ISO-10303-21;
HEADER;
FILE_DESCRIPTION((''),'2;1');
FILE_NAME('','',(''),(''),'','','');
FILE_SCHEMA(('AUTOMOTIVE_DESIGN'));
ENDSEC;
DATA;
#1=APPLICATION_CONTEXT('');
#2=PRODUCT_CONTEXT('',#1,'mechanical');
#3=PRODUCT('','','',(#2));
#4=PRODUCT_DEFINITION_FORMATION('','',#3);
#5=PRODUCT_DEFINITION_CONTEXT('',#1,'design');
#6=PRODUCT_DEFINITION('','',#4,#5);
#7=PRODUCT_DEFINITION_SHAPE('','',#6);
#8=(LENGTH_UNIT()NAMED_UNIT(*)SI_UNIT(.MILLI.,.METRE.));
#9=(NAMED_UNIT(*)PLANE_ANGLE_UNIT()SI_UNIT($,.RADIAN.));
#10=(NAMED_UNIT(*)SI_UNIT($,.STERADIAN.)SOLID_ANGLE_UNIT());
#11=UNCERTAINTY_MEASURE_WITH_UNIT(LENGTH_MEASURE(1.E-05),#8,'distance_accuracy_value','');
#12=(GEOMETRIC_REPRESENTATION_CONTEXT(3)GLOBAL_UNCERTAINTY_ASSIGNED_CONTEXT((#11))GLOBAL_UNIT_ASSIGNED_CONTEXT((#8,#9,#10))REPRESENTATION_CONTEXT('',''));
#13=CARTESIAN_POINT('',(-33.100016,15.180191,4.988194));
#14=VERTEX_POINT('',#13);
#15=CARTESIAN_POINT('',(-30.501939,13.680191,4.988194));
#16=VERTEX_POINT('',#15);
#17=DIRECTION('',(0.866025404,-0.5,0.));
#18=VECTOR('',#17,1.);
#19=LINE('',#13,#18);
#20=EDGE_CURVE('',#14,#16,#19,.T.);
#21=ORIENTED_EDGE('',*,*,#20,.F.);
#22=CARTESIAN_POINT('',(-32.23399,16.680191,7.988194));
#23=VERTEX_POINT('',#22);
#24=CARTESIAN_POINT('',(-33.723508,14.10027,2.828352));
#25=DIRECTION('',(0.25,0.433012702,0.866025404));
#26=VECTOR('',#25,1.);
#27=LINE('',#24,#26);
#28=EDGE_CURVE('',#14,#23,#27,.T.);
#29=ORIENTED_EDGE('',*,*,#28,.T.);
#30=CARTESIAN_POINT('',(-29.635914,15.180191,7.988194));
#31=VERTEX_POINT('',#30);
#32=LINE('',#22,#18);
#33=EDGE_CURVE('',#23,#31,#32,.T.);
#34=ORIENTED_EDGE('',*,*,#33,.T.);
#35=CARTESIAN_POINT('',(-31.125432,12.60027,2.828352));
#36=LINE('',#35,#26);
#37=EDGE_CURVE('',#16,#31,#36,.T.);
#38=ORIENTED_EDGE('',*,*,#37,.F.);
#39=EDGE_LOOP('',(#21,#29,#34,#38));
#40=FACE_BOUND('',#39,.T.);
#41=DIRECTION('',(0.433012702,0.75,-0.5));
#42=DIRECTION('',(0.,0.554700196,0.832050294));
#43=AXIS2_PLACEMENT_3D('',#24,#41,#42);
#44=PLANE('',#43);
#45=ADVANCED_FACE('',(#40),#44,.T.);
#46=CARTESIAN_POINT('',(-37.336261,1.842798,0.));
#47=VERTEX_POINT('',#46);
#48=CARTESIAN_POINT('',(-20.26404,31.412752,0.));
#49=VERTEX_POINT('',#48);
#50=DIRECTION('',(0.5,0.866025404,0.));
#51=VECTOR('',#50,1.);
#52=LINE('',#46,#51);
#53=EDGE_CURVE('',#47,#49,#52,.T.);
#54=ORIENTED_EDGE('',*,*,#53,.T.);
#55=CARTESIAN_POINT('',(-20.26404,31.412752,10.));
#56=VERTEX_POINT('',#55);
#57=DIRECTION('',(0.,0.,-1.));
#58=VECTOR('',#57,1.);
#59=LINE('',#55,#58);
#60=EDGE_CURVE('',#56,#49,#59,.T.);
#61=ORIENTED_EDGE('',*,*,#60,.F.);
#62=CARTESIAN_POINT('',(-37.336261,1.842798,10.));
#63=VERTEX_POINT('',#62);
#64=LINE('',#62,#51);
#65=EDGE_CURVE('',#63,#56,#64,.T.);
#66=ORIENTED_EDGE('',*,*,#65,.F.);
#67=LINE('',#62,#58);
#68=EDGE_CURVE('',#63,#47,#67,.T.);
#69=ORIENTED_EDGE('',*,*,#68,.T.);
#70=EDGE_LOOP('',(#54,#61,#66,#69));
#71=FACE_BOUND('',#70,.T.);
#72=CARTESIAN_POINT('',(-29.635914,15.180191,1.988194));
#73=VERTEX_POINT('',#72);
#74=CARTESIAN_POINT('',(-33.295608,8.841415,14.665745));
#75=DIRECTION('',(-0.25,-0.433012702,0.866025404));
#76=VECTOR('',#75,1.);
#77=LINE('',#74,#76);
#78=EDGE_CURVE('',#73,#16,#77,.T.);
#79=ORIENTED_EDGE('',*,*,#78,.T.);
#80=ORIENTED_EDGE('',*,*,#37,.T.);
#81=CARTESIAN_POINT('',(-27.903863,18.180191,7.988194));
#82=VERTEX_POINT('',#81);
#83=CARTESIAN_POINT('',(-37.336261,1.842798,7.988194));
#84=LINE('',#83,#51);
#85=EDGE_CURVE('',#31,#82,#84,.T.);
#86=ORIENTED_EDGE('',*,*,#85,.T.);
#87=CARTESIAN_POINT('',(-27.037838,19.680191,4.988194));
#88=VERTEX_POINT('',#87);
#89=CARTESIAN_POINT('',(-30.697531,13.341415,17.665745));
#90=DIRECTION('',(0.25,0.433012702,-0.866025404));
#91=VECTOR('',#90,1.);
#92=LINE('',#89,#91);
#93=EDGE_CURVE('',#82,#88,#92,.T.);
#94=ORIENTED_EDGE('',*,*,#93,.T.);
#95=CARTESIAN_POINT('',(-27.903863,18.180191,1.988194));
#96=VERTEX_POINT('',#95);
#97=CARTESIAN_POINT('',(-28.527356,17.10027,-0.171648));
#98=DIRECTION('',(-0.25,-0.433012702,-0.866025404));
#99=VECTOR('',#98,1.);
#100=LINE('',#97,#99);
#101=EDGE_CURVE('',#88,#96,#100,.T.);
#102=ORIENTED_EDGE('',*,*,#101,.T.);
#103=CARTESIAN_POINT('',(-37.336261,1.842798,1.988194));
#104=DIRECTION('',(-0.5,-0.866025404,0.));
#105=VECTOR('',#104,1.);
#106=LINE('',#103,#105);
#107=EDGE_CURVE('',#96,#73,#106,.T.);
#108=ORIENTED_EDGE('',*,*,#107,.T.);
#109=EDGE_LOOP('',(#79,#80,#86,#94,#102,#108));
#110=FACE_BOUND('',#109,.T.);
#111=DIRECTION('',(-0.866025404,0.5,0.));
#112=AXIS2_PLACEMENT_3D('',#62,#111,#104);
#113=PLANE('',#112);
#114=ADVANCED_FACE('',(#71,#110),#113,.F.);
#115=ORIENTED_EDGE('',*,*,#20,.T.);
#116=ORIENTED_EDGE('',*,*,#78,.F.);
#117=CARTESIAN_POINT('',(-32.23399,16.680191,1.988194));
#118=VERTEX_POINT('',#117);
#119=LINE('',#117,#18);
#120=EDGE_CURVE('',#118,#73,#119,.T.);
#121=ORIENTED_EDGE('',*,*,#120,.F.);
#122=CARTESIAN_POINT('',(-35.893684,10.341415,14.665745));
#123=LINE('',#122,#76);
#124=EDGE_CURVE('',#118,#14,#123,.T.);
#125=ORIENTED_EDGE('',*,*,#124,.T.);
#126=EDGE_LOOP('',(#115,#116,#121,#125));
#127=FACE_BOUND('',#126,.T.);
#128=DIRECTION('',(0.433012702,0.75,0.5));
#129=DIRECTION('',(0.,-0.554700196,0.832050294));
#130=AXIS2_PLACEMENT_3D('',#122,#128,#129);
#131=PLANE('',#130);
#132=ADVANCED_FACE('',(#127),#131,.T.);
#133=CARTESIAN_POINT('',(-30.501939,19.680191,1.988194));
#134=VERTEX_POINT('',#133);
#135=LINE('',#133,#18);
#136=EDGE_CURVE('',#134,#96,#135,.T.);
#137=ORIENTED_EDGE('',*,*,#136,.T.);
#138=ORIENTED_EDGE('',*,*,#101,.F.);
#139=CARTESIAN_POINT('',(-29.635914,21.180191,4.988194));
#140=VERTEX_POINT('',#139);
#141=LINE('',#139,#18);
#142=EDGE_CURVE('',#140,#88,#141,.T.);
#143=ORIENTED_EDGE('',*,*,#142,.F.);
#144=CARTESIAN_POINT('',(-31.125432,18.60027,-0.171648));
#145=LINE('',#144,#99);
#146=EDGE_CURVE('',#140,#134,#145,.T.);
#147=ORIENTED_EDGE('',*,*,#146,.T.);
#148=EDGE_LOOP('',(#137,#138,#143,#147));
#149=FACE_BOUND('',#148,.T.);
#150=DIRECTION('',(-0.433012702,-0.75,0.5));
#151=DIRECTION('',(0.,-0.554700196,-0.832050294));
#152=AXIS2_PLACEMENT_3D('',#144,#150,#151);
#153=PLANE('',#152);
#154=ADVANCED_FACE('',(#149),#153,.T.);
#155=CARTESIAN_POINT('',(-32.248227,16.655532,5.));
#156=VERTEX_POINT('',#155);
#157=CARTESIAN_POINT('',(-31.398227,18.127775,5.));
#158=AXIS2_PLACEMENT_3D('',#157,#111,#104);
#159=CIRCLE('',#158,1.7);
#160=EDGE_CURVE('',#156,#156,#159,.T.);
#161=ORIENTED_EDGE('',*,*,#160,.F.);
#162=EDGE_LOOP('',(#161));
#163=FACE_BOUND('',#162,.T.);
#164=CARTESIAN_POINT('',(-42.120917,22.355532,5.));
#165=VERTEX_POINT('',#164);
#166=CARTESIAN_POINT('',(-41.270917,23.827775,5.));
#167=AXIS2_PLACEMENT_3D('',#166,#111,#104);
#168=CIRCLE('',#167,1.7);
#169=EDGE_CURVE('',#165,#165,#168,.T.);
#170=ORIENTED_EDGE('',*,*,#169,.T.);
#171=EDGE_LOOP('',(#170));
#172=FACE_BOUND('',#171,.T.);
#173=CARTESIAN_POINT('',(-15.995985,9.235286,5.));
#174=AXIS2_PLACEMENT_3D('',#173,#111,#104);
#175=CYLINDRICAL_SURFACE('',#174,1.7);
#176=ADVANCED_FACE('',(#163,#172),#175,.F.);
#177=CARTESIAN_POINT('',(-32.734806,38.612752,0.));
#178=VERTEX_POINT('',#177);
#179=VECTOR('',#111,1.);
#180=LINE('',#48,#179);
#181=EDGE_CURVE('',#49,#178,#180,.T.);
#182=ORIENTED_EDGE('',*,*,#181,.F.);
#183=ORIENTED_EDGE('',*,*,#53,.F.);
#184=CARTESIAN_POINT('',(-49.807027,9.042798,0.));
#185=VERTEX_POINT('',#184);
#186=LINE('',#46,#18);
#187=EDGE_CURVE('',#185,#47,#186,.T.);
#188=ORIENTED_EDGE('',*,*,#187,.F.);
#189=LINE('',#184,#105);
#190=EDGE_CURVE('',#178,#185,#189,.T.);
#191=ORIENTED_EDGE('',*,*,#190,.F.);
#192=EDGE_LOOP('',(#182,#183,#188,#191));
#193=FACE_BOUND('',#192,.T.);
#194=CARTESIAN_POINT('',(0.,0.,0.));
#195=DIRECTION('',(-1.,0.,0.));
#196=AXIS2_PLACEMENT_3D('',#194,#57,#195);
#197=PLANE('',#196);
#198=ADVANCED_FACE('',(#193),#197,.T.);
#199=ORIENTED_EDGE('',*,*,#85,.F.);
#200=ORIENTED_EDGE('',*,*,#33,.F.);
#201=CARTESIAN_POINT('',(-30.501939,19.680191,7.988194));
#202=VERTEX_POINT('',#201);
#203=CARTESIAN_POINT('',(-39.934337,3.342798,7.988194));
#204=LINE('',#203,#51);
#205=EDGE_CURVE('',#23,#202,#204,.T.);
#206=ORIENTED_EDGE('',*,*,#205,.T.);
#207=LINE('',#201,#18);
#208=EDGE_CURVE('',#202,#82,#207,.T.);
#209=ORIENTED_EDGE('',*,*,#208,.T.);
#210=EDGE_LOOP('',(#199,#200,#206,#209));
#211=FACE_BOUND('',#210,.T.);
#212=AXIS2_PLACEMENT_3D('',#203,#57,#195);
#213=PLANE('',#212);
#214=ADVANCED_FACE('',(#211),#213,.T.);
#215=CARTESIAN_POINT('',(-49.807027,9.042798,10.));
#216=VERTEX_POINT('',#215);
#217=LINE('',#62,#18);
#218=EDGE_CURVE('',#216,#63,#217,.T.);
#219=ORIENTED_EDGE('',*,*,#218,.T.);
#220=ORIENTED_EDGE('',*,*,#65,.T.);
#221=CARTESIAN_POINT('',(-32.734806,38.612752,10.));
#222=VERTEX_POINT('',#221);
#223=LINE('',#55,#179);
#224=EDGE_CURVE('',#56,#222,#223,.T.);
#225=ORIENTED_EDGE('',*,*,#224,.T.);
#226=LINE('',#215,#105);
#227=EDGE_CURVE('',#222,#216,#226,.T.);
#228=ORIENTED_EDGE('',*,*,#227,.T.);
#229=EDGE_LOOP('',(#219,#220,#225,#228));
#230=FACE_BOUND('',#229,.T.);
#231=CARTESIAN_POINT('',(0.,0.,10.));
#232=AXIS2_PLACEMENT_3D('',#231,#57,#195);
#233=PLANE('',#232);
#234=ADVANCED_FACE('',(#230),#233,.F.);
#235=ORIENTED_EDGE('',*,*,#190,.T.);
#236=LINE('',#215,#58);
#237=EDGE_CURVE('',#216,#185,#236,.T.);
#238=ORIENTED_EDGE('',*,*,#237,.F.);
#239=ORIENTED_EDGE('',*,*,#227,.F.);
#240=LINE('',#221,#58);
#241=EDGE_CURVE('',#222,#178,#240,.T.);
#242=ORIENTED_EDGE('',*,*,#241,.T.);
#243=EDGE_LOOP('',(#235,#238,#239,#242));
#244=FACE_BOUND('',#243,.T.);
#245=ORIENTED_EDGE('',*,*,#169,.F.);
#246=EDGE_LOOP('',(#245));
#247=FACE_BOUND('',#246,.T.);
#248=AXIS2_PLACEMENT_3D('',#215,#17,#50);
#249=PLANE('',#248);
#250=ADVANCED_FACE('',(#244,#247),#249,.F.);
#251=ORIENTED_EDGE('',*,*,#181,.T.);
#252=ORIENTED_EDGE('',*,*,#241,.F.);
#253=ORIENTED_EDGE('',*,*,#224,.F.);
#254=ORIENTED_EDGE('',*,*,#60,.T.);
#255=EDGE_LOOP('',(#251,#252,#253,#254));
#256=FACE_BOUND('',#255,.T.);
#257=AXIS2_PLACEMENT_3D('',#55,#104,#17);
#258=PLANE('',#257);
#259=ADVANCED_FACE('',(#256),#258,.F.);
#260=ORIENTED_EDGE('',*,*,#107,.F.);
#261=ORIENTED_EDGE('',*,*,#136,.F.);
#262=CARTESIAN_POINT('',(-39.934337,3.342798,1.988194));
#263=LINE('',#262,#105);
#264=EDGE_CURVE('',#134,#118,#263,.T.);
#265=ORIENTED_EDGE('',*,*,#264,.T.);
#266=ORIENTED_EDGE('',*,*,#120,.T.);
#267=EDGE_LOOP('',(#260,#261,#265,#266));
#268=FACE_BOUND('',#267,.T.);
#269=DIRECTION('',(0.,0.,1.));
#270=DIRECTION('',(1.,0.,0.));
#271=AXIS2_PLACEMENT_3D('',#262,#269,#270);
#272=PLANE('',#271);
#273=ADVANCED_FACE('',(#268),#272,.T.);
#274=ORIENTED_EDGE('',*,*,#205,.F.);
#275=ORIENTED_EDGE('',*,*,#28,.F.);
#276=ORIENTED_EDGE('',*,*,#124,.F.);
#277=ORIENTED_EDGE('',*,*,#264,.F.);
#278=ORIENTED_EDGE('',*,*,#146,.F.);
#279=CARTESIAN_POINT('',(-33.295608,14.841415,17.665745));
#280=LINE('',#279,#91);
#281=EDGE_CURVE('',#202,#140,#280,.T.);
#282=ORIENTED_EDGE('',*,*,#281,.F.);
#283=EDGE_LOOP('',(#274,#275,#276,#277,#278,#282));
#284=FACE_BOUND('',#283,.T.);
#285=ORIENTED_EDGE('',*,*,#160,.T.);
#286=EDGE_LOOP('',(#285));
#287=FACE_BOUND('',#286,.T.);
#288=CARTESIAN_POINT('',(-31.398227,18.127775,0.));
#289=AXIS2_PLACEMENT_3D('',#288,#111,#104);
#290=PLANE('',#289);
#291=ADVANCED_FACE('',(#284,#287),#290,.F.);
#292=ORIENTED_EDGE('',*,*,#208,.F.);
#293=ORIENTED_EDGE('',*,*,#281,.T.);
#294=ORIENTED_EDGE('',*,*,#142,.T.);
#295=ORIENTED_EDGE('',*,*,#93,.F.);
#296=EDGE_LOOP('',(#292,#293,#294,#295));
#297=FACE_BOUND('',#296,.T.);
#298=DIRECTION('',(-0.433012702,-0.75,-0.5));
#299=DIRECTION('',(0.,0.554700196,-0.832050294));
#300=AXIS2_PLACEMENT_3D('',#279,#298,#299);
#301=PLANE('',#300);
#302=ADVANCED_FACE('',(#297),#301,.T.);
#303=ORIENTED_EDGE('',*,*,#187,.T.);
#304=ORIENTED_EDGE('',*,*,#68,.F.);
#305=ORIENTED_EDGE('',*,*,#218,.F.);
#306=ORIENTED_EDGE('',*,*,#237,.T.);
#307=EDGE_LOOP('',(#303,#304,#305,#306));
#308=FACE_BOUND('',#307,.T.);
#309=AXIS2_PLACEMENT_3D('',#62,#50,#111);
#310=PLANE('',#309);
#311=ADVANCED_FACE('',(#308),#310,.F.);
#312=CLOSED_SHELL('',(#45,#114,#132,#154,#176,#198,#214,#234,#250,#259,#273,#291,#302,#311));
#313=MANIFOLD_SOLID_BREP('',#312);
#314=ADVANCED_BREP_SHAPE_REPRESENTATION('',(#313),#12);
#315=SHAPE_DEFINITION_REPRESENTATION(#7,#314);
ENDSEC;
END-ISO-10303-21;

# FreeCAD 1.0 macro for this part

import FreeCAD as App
import Part
import Sketcher
Q = App.Units.Quantity


def add_polygon(sketch, points):
    """Adds a closed chain of lines whose ends are joined by coincident constraints."""
    first, n = sketch.GeometryCount, len(points)
    for a, b in zip(points, points[1:] + points[:1]):
        sketch.addGeometry(Part.LineSegment(App.Vector(*a, 0), App.Vector(*b, 0)), False)
    for i in range(n):
        sketch.addConstraint(Sketcher.Constraint("Coincident", first + i, 2, first + (i + 1) % n, 1))

doc = App.newDocument("Part")
body = doc.addObject("PartDesign::Body", "Body")

# Sketch on XY plane
sketch1 = doc.addObject("Sketcher::SketchObject", "Sketch")
body.addObject(sketch1)
sketch1.AttachmentSupport = (doc.XY_Plane, [""])
sketch1.MapMode = "FlatFace"
add_polygon(sketch1, [(-33, 39), (-50, 9), (-37, 2), (-20, 31)])  # lines 0-3
sketch1.addConstraint([
    Sketcher.Constraint("Perpendicular", 0, 1),
    Sketcher.Constraint("Perpendicular", 1, 2),
    Sketcher.Constraint("Perpendicular", 2, 3),
    Sketcher.Constraint("Angle", 0, Q("-120 deg")),
    Sketcher.Constraint("Distance", 1, 14.4),
    Sketcher.Constraint("Distance", 0, 34.144442),
    Sketcher.Constraint("DistanceX", 1, 2, -1, 1, 37.336261),
    Sketcher.Constraint("DistanceY", -1, 1, 2, 2, 31.412752),
])
pad1 = doc.addObject("PartDesign::Pad", "Pad")
body.addObject(pad1)
pad1.Profile = sketch1
pad1.Length = 10

# Sketch on an angled plane
sketch2 = doc.addObject("Sketcher::SketchObject", "Sketch001")
body.addObject(sketch2)
sketch2.Placement = App.Placement(App.Vector(-41.270917, 23.827775, 0), App.Rotation(App.Vector(0, 0, 1), App.Vector(0.5, 0.866025404, 0), App.Vector(-0.866025404, 0.5, 0), "ZXY"))
sketch2.addGeometry(Part.Circle(App.Vector(5, 0, 0), App.Vector(0, 0, 1), 1.7), False)
sketch2.addConstraint([
    Sketcher.Constraint("PointOnObject", 0, 3, -1),
    Sketcher.Constraint("Diameter", 0, 3.4),
    Sketcher.Constraint("DistanceX", -1, 1, 0, 3, 5.0),
])
pocket1 = doc.addObject("PartDesign::Pocket", "Pocket")
body.addObject(pocket1)
pocket1.Profile = sketch2
pocket1.Type = "ThroughAll"

# Sketch on an angled plane
sketch3 = doc.addObject("Sketcher::SketchObject", "Sketch002")
body.addObject(sketch3)
sketch3.Placement = App.Placement(App.Vector(-31.398227, 18.127775, 0), App.Rotation(App.Vector(0, 0, 1), App.Vector(0.5, 0.866025404, 0), App.Vector(-0.866025404, 0.5, 0), "ZXY"))
add_polygon(sketch3, [(5, 3.5), (2, 1.8), (2, -1.7), (5, -3.4), (8, -1.7), (8, 1.8)])  # lines 0-5
sketch3.addGeometry(Part.Circle(App.Vector(5, 0, 0), App.Vector(0, 0, 1), 1.7), False)  # 6
sketch3.addConstraint([
    Sketcher.Constraint("Vertical", 1),
    Sketcher.Constraint("Vertical", 4),
    Sketcher.Constraint("PointOnObject", 6, 3, -1),
    Sketcher.Constraint("Parallel", 0, 3),
    Sketcher.Constraint("Parallel", 2, 5),
    Sketcher.Constraint("Horizontal", 1, 2, 3, 2),
    Sketcher.Constraint("Horizontal", 0, 2, 4, 2),
    Sketcher.Constraint("Vertical", 2, 2, 5, 2),
    Sketcher.Constraint("Diameter", 6, 3.4),
    Sketcher.Constraint("Angle", 0, Q("-150 deg")),
    Sketcher.Constraint("DistanceX", -1, 1, 6, 3, 5.0),
    Sketcher.Constraint("DistanceX", 1, 2, 2, 2, 3.0),
    Sketcher.Constraint("DistanceY", 1, 2, 1, 1, 3.464102),
    Sketcher.Constraint("DistanceX", -1, 1, 0, 2, 1.988194),
    Sketcher.Constraint("DistanceY", -1, 1, 0, 2, 1.792575),
])
pocket2 = doc.addObject("PartDesign::Pocket", "Pocket001")
body.addObject(pocket2)
pocket2.Profile = sketch3
pocket2.Length = 3

doc.recompute()
